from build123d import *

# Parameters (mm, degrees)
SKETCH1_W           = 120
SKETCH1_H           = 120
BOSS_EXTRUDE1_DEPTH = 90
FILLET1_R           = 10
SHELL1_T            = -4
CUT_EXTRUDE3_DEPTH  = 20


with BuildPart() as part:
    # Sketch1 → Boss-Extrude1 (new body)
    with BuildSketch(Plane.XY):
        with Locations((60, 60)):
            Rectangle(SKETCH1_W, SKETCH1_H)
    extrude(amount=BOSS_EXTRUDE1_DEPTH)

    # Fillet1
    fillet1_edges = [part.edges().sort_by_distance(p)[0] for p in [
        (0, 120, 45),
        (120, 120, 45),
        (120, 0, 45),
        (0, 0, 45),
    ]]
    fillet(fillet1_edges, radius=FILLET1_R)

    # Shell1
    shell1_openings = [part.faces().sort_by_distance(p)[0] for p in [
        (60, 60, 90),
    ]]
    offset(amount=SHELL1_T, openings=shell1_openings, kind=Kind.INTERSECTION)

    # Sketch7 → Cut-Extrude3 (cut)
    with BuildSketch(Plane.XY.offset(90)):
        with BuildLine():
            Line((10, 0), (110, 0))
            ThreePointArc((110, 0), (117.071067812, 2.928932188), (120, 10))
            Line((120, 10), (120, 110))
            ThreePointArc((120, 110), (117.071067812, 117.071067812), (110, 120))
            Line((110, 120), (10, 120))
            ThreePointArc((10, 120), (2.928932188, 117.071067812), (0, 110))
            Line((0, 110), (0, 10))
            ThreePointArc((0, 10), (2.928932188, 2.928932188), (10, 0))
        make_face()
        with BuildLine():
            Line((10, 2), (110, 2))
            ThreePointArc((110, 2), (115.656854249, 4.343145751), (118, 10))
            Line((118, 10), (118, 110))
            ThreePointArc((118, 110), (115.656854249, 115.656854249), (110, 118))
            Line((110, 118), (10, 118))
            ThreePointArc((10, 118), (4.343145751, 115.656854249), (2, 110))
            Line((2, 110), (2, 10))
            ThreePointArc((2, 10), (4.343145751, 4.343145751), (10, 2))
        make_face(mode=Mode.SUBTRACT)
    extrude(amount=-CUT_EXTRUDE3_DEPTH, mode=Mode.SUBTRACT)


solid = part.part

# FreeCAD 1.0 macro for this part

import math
import FreeCAD as App
import Part
import Sketcher
from FreeCAD import Vector
Q = App.Units.Quantity


def edges_at(feature, points):
    """Names of the edges that pass closest to the given points."""
    edges = feature.Shape.Edges
    near = lambda p: min(range(len(edges)), key=lambda i: edges[i].distToShape(Part.Vertex(*p))[0])
    return sorted({f"Edge{near(p) + 1}" for p in points})


def faces_at(feature, points):
    """Names of the faces that lie closest to the given points."""
    faces = feature.Shape.Faces
    near = lambda p: min(range(len(faces)), key=lambda i: faces[i].distToShape(Part.Vertex(*p))[0])
    return sorted({f"Face{near(p) + 1}" for p in points})


def add_polygon(sketch, points):
    """Adds a closed chain of lines whose ends are joined by coincident constraints."""
    first, n = sketch.GeometryCount, len(points)
    for a, b in zip(points, points[1:] + points[:1]):
        sketch.addGeometry(Part.LineSegment(App.Vector(*a, 0), App.Vector(*b, 0)), False)
    for i in range(n):
        sketch.addConstraint(Sketcher.Constraint("Coincident", first + i, 2, first + (i + 1) % n, 1))

doc = App.newDocument("Part")
params = doc.addObject("Spreadsheet::Sheet", "Params")
for row, (alias, value) in enumerate([
    ("sketch1_width", "120 mm"),
    ("pad1_length", "90 mm"),
    ("fillet_radius", "10 mm"),
    ("thickness_wall", "4 mm"),
    ("sketch2_radius", "10 mm"),
    ("sketch2_radius2", "8 mm"),
    ("sketch2_width", "100 mm"),
    ("pocket1_length", "20 mm"),
], start=1):
    params.set(f"A{row}", alias)
    params.set(f"B{row}", "=" + value)
    params.setAlias(f"B{row}", alias)

body = doc.addObject("PartDesign::Body", "Body")

# Sketch on XY plane
sketch1 = body.newObject("Sketcher::SketchObject", "Sketch")
sketch1.AttachmentSupport = (doc.getObject("XY_Plane"), [""])
sketch1.MapMode = "FlatFace"
add_polygon(sketch1, [(0, 120), (0, 0), (120, 0), (120, 120)])  # lines 0-3
sketch1.addConstraint([
    Sketcher.Constraint("Vertical", 0),
    Sketcher.Constraint("Horizontal", 1),
    Sketcher.Constraint("Vertical", 2),
    Sketcher.Constraint("Horizontal", 3),
    Sketcher.Constraint("Coincident", 0, 2, -1, 1),
    Sketcher.Constraint("Equal", 3, 0),
    Sketcher.Constraint("DistanceX", 1, 1, 1, 2, Q("120 mm")),
])
sketch1.setExpression("Constraints[10]", "Params.sketch1_width")
pad1 = body.newObject("PartDesign::Pad", "Pad")
pad1.Profile = sketch1
pad1.setExpression("Length", "Params.pad1_length")
doc.recompute()

fillet = body.newObject("PartDesign::Fillet", "Fillet")
fillet.Base = (pad1, edges_at(pad1, [
    (0, 120, 45),
    (120, 120, 45),
    (120, 0, 45),
    (0, 0, 45),
]))
fillet.setExpression("Radius", "Params.fillet_radius")
doc.recompute()

thickness = body.newObject("PartDesign::Thickness", "Thickness")
thickness.Base = (fillet, faces_at(fillet, [(60, 60, 90)]))
thickness.setExpression("Value", "Params.thickness_wall")
thickness.Reversed = True
thickness.Join = "Intersection"

# Sketch on XY plane
sketch2 = body.newObject("Sketcher::SketchObject", "Sketch001")
sketch2.AttachmentSupport = (doc.getObject("XY_Plane"), [""])
sketch2.MapMode = "FlatFace"
sketch2.AttachmentOffset = App.Placement(Vector(0, 0, 90), App.Rotation())
sketch2.addGeometry([
    Part.LineSegment(Vector(10, 0, 0), Vector(110, 0, 0)),  # 0
    Part.ArcOfCircle(Part.Circle(Vector(110, 10, 0), Vector(0, 0, 1), 10), math.radians(-90), math.radians(0)),  # 1
    Part.LineSegment(Vector(120, 10, 0), Vector(120, 110, 0)),  # 2
    Part.ArcOfCircle(Part.Circle(Vector(110, 110, 0), Vector(0, 0, 1), 10), math.radians(0), math.radians(90)),  # 3
    Part.LineSegment(Vector(110, 120, 0), Vector(10, 120, 0)),  # 4
    Part.ArcOfCircle(Part.Circle(Vector(10, 110, 0), Vector(0, 0, 1), 10), math.radians(90), math.radians(180)),  # 5
    Part.LineSegment(Vector(0, 110, 0), Vector(0, 10, 0)),  # 6
    Part.ArcOfCircle(Part.Circle(Vector(10, 10, 0), Vector(0, 0, 1), 10), math.radians(180), math.radians(270)),  # 7
    Part.LineSegment(Vector(110, 2, 0), Vector(10, 2, 0)),  # 8
    Part.ArcOfCircle(Part.Circle(Vector(10, 10, 0), Vector(0, 0, 1), 8), math.radians(-180), math.radians(-90)),  # 9
    Part.LineSegment(Vector(2, 10, 0), Vector(2, 110, 0)),  # 10
    Part.ArcOfCircle(Part.Circle(Vector(10, 110, 0), Vector(0, 0, 1), 8), math.radians(90), math.radians(180)),  # 11
    Part.LineSegment(Vector(10, 118, 0), Vector(110, 118, 0)),  # 12
    Part.ArcOfCircle(Part.Circle(Vector(110, 110, 0), Vector(0, 0, 1), 8), math.radians(0), math.radians(90)),  # 13
    Part.LineSegment(Vector(118, 110, 0), Vector(118, 10, 0)),  # 14
    Part.ArcOfCircle(Part.Circle(Vector(110, 10, 0), Vector(0, 0, 1), 8), math.radians(-90), math.radians(0)),  # 15
], False)
sketch2.addConstraint([
    Sketcher.Constraint("Tangent", 0, 2, 1, 1),
    Sketcher.Constraint("Tangent", 1, 2, 2, 1),
    Sketcher.Constraint("Tangent", 2, 2, 3, 1),
    Sketcher.Constraint("Tangent", 3, 2, 4, 1),
    Sketcher.Constraint("Tangent", 4, 2, 5, 1),
    Sketcher.Constraint("Tangent", 5, 2, 6, 1),
    Sketcher.Constraint("Tangent", 6, 2, 7, 1),
    Sketcher.Constraint("Tangent", 7, 2, 0, 1),
    Sketcher.Constraint("Tangent", 8, 2, 9, 2),
    Sketcher.Constraint("Tangent", 9, 1, 10, 1),
    Sketcher.Constraint("Tangent", 10, 2, 11, 2),
    Sketcher.Constraint("Tangent", 11, 1, 12, 1),
    Sketcher.Constraint("Tangent", 12, 2, 13, 2),
    Sketcher.Constraint("Tangent", 13, 1, 14, 1),
    Sketcher.Constraint("Tangent", 14, 2, 15, 2),
    Sketcher.Constraint("Tangent", 15, 1, 8, 1),
    Sketcher.Constraint("Horizontal", 0),
    Sketcher.Constraint("Vertical", 2),
    Sketcher.Constraint("Horizontal", 4),
    Sketcher.Constraint("Vertical", 6),
    Sketcher.Constraint("Horizontal", 8),
    Sketcher.Constraint("Vertical", 10),
    Sketcher.Constraint("Horizontal", 12),
    Sketcher.Constraint("Vertical", 14),
    Sketcher.Constraint("Coincident", 9, 3, 7, 3),
    Sketcher.Constraint("Coincident", 11, 3, 5, 3),
    Sketcher.Constraint("Coincident", 13, 3, 3, 3),
    Sketcher.Constraint("Equal", 1, 3),
    Sketcher.Constraint("Equal", 3, 5),
    Sketcher.Constraint("Equal", 5, 7),
    Sketcher.Constraint("Equal", 13, 15),
    Sketcher.Constraint("PointOnObject", 0, 2, -1),
    Sketcher.Constraint("PointOnObject", 5, 2, -2),
    Sketcher.Constraint("Equal", 12, 2),
    Sketcher.Constraint("Radius", 1, Q("10 mm")),
    Sketcher.Constraint("Radius", 9, Q("8 mm")),
    Sketcher.Constraint("DistanceX", 0, 1, 0, 2, Q("100 mm")),
])
sketch2.setExpression("Constraints[34]", "Params.sketch2_radius")
sketch2.setExpression("Constraints[35]", "Params.sketch2_radius2")
sketch2.setExpression("Constraints[36]", "Params.sketch2_width")
pocket1 = body.newObject("PartDesign::Pocket", "Pocket")
pocket1.Profile = sketch2
pocket1.setExpression("Length", "Params.pocket1_length")

doc.recompute()
